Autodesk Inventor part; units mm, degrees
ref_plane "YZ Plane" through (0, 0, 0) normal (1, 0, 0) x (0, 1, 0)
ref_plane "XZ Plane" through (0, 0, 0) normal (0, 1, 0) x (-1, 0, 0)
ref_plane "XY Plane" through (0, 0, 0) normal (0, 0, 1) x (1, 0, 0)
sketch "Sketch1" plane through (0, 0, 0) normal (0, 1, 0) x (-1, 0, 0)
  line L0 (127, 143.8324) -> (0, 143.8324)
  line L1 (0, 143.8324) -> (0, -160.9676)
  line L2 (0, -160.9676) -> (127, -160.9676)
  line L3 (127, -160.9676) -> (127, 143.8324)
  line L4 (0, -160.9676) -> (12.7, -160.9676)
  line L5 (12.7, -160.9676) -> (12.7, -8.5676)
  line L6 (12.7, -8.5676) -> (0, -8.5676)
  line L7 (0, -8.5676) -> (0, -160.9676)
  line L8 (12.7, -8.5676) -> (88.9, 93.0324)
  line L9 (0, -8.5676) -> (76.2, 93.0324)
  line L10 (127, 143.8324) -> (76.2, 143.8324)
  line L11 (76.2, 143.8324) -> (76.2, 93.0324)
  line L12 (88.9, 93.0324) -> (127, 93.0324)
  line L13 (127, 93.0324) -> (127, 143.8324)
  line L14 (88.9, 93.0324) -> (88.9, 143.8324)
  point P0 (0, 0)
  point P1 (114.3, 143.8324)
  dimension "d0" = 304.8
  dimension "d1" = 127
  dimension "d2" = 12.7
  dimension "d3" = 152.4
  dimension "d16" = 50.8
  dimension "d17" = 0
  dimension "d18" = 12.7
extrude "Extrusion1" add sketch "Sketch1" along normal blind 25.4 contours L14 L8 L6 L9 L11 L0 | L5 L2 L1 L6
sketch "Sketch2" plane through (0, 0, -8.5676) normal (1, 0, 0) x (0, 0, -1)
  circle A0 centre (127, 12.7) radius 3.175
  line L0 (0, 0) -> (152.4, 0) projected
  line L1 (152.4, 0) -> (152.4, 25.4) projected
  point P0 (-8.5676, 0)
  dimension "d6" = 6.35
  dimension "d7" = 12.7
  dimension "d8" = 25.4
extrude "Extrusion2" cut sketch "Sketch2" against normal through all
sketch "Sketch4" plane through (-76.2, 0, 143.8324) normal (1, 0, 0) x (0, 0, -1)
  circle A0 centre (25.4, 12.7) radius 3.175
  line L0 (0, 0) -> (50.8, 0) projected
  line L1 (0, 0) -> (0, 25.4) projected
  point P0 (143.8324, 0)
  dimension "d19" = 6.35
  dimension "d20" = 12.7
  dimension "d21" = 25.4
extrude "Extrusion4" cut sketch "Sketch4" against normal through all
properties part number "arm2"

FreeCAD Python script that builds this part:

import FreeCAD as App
import Part
import Sketcher
from FreeCAD import Vector
Q = App.Units.Quantity

doc = App.newDocument("Part")
body = doc.addObject("PartDesign::Body", "Body")

sketch1 = body.newObject("Sketcher::SketchObject", "Sketch")
sketch1.AttachmentSupport = (doc.getObject("XZ_Plane"), [""])
sketch1.MapMode = "FlatFace"
sketch1.addGeometry([
    Part.LineSegment(Vector(-89, 93, 0), Vector(-89, 144, 0)),
    Part.LineSegment(Vector(-89, 144, 0), Vector(-76, 144, 0)),
    Part.LineSegment(Vector(-76, 144, 0), Vector(-76, 93, 0)),
    Part.LineSegment(Vector(-76, 93, 0), Vector(0, -9, 0)),
    Part.LineSegment(Vector(0, -9, 0), Vector(0, -161, 0)),
    Part.LineSegment(Vector(0, -161, 0), Vector(-13, -161, 0)),
    Part.LineSegment(Vector(-13, -161, 0), Vector(-13, -9, 0)),
    Part.LineSegment(Vector(-13, -9, 0), Vector(-89, 93, 0)),
], False)
sketch1.addConstraint([
    Sketcher.Constraint("Coincident", 0, 2, 1, 1),
    Sketcher.Constraint("Coincident", 1, 2, 2, 1),
    Sketcher.Constraint("Coincident", 2, 2, 3, 1),
    Sketcher.Constraint("Coincident", 3, 2, 4, 1),
    Sketcher.Constraint("Coincident", 4, 2, 5, 1),
    Sketcher.Constraint("Coincident", 5, 2, 6, 1),
    Sketcher.Constraint("Coincident", 6, 2, 7, 1),
    Sketcher.Constraint("Coincident", 7, 2, 0, 1),
    Sketcher.Constraint("Vertical", 0),
    Sketcher.Constraint("Horizontal", 1),
    Sketcher.Constraint("Vertical", 2),
    Sketcher.Constraint("Vertical", 4),
    Sketcher.Constraint("Horizontal", 5),
    Sketcher.Constraint("Vertical", 6),
    Sketcher.Constraint("PointOnObject", 3, 2, -2),
    Sketcher.Constraint("Parallel", 3, 7),
    Sketcher.Constraint("Horizontal", 3, 2, 6, 2),
    Sketcher.Constraint("Horizontal", 2, 2, 7, 2),
    Sketcher.Constraint("DistanceY", 0, 1, 0, 2, Q("2 in")),
    Sketcher.Constraint("DistanceY", 4, 2, 4, 1, Q("6 in")),
    Sketcher.Constraint("Distance", 3, Q("5 in")),
    Sketcher.Constraint("DistanceX", 1, 1, 1, 2, Q("0.5 in")),
    Sketcher.Constraint("DistanceY", 3, 2, 1, 2, Q("6 in")),
    Sketcher.Constraint("DistanceY", -1, 1, 0, 2, Q("5.6627 in")),
])
pad1 = body.newObject("PartDesign::Pad", "Pad")
pad1.Profile = sketch1
pad1.Length = Q("1 in")
pad1.Reversed = True

sketch2 = body.newObject("Sketcher::SketchObject", "Sketch001")
sketch2.AttachmentSupport = (doc.getObject("YZ_Plane"), [""])
sketch2.MapMode = "FlatFace"
sketch2.addGeometry(Part.Circle(Vector(12.7, -135.6, 0), Vector(0, 0, 1), 3.2), False)
sketch2.addConstraint([
    Sketcher.Constraint("Diameter", 0, Q("0.25 in")),
    Sketcher.Constraint("DistanceX", -1, 1, 0, 3, Q("0.5 in")),
    Sketcher.Constraint("DistanceY", 0, 3, -1, 1, Q("5.3373 in")),
])
pocket1 = body.newObject("PartDesign::Pocket", "Pocket")
pocket1.Profile = sketch2
pocket1.Type = "ThroughAll"

sketch3 = body.newObject("Sketcher::SketchObject", "Sketch002")
sketch3.AttachmentSupport = (doc.getObject("YZ_Plane"), [""])
sketch3.MapMode = "FlatFace"
sketch3.AttachmentOffset = App.Placement(Vector(0, 0, -3 * 25.4), App.Rotation())
sketch3.addGeometry(Part.Circle(Vector(12.7, 118.4, 0), Vector(0, 0, 1), 3.2), False)
sketch3.addConstraint([
    Sketcher.Constraint("Diameter", 0, Q("0.25 in")),
    Sketcher.Constraint("DistanceX", -1, 1, 0, 3, Q("0.5 in")),
    Sketcher.Constraint("DistanceY", -1, 1, 0, 3, Q("4.6627 in")),
])
pocket2 = body.newObject("PartDesign::Pocket", "Pocket001")
pocket2.Profile = sketch3
pocket2.Type = "ThroughAll"

doc.recompute()
